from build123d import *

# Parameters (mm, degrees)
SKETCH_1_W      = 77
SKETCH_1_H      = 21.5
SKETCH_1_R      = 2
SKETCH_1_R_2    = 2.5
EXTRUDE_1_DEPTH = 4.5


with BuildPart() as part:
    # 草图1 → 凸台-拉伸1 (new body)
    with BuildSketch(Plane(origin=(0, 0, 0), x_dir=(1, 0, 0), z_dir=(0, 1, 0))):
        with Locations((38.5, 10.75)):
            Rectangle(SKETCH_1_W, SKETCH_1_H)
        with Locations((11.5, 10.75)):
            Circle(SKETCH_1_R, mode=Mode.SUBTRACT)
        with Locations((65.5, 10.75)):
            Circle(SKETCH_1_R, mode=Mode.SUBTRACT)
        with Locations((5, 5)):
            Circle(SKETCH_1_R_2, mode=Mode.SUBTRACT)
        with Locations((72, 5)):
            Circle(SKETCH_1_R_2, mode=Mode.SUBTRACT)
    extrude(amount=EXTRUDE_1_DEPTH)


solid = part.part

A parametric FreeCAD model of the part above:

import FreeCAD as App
import Part
import Sketcher
from FreeCAD import Vector
Q = App.Units.Quantity


def add_polygon(sketch, points):
    """Adds a closed chain of lines whose ends are joined by coincident constraints."""
    first, n = sketch.GeometryCount, len(points)
    for a, b in zip(points, points[1:] + points[:1]):
        sketch.addGeometry(Part.LineSegment(App.Vector(*a, 0), App.Vector(*b, 0)), False)
    for i in range(n):
        sketch.addConstraint(Sketcher.Constraint("Coincident", first + i, 2, first + (i + 1) % n, 1))

doc = App.newDocument("Part")
params = doc.addObject("Spreadsheet::Sheet", "Params")
for row, (alias, value) in enumerate([
    ("sketch1_diameter", "5 mm"),
    ("sketch1_diameter2", "4 mm"),
    ("sketch1_width", "77 mm"),
    ("sketch1_height", "21.5 mm"),
    ("pad1_length", "4.5 mm"),
], start=1):
    params.set(f"A{row}", alias)
    params.set(f"B{row}", "=" + value)
    params.setAlias(f"B{row}", alias)

body = doc.addObject("PartDesign::Body", "Body")

# Sketch on XZ plane
sketch1 = body.newObject("Sketcher::SketchObject", "Sketch")
sketch1.AttachmentSupport = (doc.getObject("XZ_Plane"), [""])
sketch1.MapMode = "FlatFace"
add_polygon(sketch1, [(0, -21.5), (0, 0), (77, 0), (77, -21.5)])  # lines 0-3
sketch1.addGeometry(Part.Circle(Vector(5, -5, 0), Vector(0, 0, 1), 2.5), False)  # 4
sketch1.addGeometry(Part.Circle(Vector(72, -5, 0), Vector(0, 0, 1), 2.5), False)  # 5
sketch1.addGeometry(Part.Circle(Vector(11.5, -10.75, 0), Vector(0, 0, 1), 2), False)  # 6
sketch1.addGeometry(Part.Circle(Vector(65.5, -10.75, 0), Vector(0, 0, 1), 2), False)  # 7
sketch1.addConstraint([
    Sketcher.Constraint("Vertical", 0),
    Sketcher.Constraint("Horizontal", 1),
    Sketcher.Constraint("Vertical", 2),
    Sketcher.Constraint("Horizontal", 3),
    Sketcher.Constraint("Coincident", 0, 2, -1, 1),
    Sketcher.Constraint("Equal", 4, 5),
    Sketcher.Constraint("Equal", 6, 7),
    Sketcher.Constraint("Horizontal", 4, 3, 5, 3),
    Sketcher.Constraint("Horizontal", 6, 3, 7, 3),
    Sketcher.Constraint("Diameter", 4, Q("5 mm")),
    Sketcher.Constraint("Diameter", 6, Q("4 mm")),
    Sketcher.Constraint("DistanceX", 1, 1, 1, 2, Q("77 mm")),
    Sketcher.Constraint("DistanceY", 0, 1, 0, 2, Q("21.5 mm")),
    Sketcher.Constraint("DistanceX", -1, 1, 4, 3, Q("5 mm")),
    Sketcher.Constraint("DistanceY", 4, 3, -1, 1, Q("5 mm")),
    Sketcher.Constraint("DistanceX", -1, 1, 5, 3, Q("72 mm")),
    Sketcher.Constraint("DistanceX", 6, 3, 7, 3, Q("54 mm")),
    Sketcher.Constraint("DistanceX", -1, 1, 6, 3, Q("11.5 mm")),
    Sketcher.Constraint("DistanceY", 6, 3, -1, 1, Q("10.75 mm")),
])
sketch1.setExpression("Constraints[13]", "Params.sketch1_diameter")
sketch1.setExpression("Constraints[14]", "Params.sketch1_diameter2")
sketch1.setExpression("Constraints[15]", "Params.sketch1_width")
sketch1.setExpression("Constraints[16]", "Params.sketch1_height")
pad1 = body.newObject("PartDesign::Pad", "Pad")
pad1.Profile = sketch1
pad1.setExpression("Length", "Params.pad1_length")
pad1.Reversed = True

doc.recompute()
